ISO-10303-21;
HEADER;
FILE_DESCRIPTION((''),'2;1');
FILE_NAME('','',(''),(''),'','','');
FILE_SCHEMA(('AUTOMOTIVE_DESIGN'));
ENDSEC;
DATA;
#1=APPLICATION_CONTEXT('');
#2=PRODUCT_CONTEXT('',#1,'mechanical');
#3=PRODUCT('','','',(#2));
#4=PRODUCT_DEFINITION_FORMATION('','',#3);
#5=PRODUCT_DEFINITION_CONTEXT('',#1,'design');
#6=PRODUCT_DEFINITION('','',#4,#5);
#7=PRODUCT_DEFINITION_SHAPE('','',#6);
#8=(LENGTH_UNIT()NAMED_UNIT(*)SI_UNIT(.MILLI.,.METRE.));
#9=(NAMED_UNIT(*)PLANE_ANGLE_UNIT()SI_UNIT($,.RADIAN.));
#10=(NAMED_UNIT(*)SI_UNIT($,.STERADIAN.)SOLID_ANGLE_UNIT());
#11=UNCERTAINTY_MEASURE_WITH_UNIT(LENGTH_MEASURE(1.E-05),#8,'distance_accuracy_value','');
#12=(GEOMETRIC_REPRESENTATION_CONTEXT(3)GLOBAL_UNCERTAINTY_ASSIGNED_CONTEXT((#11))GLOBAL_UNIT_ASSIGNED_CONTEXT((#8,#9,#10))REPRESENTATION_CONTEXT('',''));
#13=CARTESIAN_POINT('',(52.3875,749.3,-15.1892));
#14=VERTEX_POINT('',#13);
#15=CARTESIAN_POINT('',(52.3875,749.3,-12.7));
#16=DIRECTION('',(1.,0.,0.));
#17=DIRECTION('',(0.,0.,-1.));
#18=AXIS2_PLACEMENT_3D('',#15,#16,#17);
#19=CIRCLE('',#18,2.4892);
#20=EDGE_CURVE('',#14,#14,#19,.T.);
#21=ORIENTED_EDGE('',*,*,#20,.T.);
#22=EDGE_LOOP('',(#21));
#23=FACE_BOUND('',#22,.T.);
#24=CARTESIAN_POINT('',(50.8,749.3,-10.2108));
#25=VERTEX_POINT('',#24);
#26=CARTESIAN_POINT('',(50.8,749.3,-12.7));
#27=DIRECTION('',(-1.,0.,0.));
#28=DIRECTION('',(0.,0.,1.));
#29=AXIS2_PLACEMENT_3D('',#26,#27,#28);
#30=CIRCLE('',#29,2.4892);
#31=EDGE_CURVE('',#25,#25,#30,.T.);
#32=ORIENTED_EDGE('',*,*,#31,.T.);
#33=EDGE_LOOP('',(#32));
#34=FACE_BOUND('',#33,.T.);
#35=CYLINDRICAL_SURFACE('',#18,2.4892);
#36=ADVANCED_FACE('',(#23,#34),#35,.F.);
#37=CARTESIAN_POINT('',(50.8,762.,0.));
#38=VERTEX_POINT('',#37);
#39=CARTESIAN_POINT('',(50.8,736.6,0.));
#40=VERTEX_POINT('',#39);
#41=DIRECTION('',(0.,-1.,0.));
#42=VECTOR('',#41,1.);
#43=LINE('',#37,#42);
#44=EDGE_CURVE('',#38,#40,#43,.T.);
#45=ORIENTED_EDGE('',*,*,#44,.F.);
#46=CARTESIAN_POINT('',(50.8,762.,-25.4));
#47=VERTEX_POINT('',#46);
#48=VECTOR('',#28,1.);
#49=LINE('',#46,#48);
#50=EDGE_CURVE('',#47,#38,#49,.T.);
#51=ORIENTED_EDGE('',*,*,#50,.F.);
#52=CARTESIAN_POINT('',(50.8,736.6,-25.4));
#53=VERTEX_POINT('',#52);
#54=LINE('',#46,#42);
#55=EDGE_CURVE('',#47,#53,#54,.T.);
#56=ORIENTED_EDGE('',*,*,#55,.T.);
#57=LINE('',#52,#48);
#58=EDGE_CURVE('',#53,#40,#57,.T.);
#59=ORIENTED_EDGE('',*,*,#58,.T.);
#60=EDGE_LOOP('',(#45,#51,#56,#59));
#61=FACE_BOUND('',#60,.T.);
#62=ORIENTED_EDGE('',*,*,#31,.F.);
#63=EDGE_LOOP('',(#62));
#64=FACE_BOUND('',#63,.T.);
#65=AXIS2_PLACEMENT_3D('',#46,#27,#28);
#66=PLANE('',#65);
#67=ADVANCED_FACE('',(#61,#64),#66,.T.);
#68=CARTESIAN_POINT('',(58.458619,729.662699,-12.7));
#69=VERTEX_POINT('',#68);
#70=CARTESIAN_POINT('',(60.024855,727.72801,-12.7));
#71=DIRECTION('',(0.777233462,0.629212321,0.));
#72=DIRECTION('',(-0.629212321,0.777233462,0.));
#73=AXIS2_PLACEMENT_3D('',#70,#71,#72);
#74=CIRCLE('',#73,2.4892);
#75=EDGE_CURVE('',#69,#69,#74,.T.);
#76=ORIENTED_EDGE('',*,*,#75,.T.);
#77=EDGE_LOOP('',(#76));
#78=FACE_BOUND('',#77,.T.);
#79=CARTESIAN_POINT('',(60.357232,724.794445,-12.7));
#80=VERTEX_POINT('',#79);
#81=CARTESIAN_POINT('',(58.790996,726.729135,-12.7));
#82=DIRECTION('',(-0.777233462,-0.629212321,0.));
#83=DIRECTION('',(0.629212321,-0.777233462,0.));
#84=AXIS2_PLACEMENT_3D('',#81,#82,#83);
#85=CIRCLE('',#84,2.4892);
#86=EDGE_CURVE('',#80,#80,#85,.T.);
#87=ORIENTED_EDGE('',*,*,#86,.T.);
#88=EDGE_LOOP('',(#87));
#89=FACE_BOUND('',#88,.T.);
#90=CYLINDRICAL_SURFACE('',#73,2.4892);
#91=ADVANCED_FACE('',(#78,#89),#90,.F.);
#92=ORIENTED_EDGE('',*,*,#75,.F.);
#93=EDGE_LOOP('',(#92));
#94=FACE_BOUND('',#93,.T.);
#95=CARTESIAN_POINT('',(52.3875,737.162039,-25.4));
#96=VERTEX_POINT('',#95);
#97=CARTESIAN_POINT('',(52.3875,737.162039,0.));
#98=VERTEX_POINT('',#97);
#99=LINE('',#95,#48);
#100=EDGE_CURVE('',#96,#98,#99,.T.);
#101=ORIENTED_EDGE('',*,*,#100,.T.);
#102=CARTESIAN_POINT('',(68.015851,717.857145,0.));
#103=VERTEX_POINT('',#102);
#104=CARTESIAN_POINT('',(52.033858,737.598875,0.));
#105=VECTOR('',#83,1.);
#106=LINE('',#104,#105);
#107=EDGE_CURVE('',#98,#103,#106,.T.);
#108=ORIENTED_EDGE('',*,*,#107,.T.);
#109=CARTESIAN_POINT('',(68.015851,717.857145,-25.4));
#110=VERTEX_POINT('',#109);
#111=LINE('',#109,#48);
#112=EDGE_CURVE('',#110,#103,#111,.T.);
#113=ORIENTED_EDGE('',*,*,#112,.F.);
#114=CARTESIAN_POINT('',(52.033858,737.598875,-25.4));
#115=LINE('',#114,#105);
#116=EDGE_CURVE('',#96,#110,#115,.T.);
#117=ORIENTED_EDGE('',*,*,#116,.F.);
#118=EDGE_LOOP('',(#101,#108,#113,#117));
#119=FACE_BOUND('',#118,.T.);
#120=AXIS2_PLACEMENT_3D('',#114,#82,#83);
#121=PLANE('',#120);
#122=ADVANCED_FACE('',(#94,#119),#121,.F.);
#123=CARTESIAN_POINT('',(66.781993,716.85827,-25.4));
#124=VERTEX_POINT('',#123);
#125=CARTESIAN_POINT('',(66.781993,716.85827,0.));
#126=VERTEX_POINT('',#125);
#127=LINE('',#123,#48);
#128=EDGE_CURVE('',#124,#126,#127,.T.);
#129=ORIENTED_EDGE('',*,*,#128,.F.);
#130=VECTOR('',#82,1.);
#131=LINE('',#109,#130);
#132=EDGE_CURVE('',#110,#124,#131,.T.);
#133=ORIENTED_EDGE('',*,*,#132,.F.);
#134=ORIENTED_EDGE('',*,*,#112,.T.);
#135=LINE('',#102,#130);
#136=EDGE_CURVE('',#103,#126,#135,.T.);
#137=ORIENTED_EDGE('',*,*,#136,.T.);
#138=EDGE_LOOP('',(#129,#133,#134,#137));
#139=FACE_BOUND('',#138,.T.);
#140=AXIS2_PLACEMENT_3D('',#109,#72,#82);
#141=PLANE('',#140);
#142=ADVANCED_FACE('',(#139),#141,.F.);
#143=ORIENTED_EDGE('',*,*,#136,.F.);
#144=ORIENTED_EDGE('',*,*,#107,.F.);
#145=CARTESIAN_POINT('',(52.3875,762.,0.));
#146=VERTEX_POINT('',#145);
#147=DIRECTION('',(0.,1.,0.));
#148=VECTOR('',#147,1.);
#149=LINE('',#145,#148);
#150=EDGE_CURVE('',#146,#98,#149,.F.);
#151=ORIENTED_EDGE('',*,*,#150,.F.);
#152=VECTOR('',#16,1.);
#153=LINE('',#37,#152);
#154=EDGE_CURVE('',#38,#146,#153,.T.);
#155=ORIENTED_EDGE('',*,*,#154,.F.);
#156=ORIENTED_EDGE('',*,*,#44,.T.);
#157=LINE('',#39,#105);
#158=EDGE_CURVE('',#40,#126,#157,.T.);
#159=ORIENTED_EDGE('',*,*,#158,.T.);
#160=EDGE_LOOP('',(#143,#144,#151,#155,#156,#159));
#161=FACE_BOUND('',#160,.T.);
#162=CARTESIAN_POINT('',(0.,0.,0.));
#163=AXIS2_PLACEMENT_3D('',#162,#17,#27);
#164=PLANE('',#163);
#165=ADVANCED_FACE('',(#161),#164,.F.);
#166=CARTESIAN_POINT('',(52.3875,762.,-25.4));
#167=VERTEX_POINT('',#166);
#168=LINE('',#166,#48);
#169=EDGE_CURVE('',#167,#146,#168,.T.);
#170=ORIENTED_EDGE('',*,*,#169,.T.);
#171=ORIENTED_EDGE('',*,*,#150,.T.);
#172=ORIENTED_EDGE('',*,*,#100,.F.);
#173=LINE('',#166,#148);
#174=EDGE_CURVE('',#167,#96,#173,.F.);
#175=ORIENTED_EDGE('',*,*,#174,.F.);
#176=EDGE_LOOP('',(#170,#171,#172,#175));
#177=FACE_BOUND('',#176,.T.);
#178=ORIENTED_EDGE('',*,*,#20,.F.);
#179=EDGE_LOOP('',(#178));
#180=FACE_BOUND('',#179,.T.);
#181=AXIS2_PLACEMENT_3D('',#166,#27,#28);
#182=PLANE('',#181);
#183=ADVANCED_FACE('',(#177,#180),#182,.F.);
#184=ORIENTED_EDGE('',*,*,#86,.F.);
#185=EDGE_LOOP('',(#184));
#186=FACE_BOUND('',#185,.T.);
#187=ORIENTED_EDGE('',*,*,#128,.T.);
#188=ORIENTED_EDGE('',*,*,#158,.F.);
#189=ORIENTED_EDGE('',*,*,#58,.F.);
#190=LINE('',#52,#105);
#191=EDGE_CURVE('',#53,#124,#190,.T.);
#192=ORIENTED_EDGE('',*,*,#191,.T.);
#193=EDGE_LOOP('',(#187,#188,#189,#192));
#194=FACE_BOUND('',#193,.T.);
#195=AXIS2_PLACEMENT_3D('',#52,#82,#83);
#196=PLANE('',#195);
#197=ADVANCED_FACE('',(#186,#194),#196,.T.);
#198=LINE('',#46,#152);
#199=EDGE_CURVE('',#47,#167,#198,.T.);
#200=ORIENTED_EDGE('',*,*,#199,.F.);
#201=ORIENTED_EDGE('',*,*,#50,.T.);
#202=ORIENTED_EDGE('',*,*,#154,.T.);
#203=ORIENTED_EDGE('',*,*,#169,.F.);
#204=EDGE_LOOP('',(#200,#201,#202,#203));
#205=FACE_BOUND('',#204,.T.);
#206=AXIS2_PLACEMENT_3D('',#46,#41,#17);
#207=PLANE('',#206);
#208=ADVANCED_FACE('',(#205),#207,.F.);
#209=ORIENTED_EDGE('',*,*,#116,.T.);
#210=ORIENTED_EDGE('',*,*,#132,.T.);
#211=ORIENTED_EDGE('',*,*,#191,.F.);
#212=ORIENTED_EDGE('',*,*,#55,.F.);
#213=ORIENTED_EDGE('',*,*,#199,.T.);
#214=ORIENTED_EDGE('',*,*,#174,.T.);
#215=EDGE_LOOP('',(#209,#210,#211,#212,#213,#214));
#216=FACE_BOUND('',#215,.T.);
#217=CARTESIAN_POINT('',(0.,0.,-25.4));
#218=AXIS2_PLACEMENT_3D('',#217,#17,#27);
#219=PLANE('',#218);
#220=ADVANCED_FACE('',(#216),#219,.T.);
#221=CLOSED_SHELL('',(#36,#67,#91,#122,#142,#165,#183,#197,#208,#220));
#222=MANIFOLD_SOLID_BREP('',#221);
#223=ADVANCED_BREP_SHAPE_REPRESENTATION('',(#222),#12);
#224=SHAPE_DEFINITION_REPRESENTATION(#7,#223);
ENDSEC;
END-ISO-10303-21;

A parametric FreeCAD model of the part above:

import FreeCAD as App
import Part
import Sketcher
Q = App.Units.Quantity

doc = App.newDocument("Part")
body = doc.addObject("PartDesign::Body", "Body")

sketch1 = body.newObject("Sketcher::SketchObject", "Sketch")
sketch1.AttachmentSupport = (doc.getObject("XY_Plane"), [""])
sketch1.MapMode = "FlatFace"
sketch1.addGeometry([
    Part.LineSegment(App.Vector(50.8, 762, 0), App.Vector(50.8, 736.6, 0)),
    Part.LineSegment(App.Vector(50.8, 736.6, 0), App.Vector(66.8, 716.9, 0)),
    Part.LineSegment(App.Vector(66.8, 716.9, 0), App.Vector(68, 717.9, 0)),
    Part.LineSegment(App.Vector(68, 717.9, 0), App.Vector(52.4, 737.2, 0)),
    Part.LineSegment(App.Vector(52.4, 737.2, 0), App.Vector(52.4, 762, 0)),
    Part.LineSegment(App.Vector(52.4, 762, 0), App.Vector(50.8, 762, 0)),
], False)
sketch1.addConstraint([
    Sketcher.Constraint("Coincident", 0, 2, 1, 1),
    Sketcher.Constraint("Coincident", 1, 2, 2, 1),
    Sketcher.Constraint("Coincident", 2, 2, 3, 1),
    Sketcher.Constraint("Coincident", 3, 2, 4, 1),
    Sketcher.Constraint("Coincident", 4, 2, 5, 1),
    Sketcher.Constraint("Coincident", 5, 2, 0, 1),
    Sketcher.Constraint("Vertical", 0),
    Sketcher.Constraint("Vertical", 4),
    Sketcher.Constraint("Horizontal", 5),
    Sketcher.Constraint("Perpendicular", 1, 2),
    Sketcher.Constraint("Perpendicular", 2, 3),
    Sketcher.Constraint("DistanceY", 0, 2, 0, 1, Q("1 in")),
    Sketcher.Constraint("Distance", 1, Q("1 in")),
    Sketcher.Constraint("DistanceX", -1, 1, 0, 2, Q("2 in")),
    Sketcher.Constraint("DistanceY", -1, 1, 0, 2, Q("29 in")),
    Sketcher.Constraint("DistanceX", 5, 2, 5, 1, Q("0.0625 in")),
    Sketcher.Constraint("Distance", 2, Q("0.0625 in")),
    Sketcher.Constraint("DistanceY", 4, 1, 4, 2, Q("24.837961 mm")),
])
pad1 = body.newObject("PartDesign::Pad", "Pad")
pad1.Profile = sketch1
pad1.Length = Q("1 in")
pad1.Reversed = True

sketch2 = body.newObject("Sketcher::SketchObject", "Sketch001")
sketch2.Placement = App.Placement(App.Vector(392.152176, 317.468294, 0), App.Rotation(App.Vector(0, 0, -1), App.Vector(-0.629212321, 0.777233462, 0), App.Vector(0.777233462, 0.629212321, 0), "ZXY"))
sketch2.addGeometry(Part.Circle(App.Vector(12.7, 527.8, 0), App.Vector(0, 0, 1), 2.5), False)
sketch2.addConstraint([
    Sketcher.Constraint("Diameter", 0, Q("0.196 in")),
    Sketcher.Constraint("DistanceX", -1, 1, 0, 3, Q("0.5 in")),
    Sketcher.Constraint("DistanceY", -1, 1, 0, 3, Q("527.846182 mm")),
])
doc.recompute()
hole = body.newObject("PartDesign::Hole", "Hole")
hole.Profile = sketch2
hole.ThreadType = "None"
hole.Diameter = Q("0.196 in")
hole.DepthType = "Dimension"
hole.Depth = 1.5885
hole.DrillPoint = "Flat"
doc.recompute()

datumplane = body.newObject("PartDesign::Plane", "DatumPlane")
datumplane.Placement = App.Placement(App.Vector(-226.080628, 638.573091, 0), App.Rotation(App.Vector(-0.942664697, -0.33374132, 0), App.Vector(0, 0, -1), App.Vector(0.33374132, -0.942664697, 0), "ZXY"))
mirrored = body.newObject("PartDesign::Mirrored", "Mirrored")
mirrored.Originals = [hole]
mirrored.MirrorPlane = (datumplane, [""])
body.Tip = mirrored

doc.recompute()
